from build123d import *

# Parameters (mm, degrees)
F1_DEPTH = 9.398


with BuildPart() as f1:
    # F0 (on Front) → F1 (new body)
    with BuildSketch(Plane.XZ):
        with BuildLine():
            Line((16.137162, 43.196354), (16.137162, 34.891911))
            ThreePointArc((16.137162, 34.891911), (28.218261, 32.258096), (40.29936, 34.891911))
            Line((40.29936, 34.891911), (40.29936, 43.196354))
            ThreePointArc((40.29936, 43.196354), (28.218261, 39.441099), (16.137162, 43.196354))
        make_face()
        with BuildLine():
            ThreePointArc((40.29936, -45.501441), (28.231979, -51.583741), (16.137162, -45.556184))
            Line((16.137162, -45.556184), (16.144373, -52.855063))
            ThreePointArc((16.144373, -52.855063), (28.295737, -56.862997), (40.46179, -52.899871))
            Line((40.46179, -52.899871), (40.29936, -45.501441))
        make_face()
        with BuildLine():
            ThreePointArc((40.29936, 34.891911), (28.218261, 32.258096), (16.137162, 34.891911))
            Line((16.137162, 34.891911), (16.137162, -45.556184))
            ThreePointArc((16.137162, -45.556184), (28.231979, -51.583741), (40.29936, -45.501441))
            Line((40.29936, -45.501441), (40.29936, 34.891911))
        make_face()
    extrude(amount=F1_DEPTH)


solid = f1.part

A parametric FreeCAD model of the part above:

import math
import FreeCAD as App
import Part
import Sketcher

V = App.Vector
Q = App.Units.Quantity

doc = App.newDocument("Part")
body = doc.addObject("PartDesign::Body", "Body")

# Sketch on XZ plane
sketch1 = doc.addObject("Sketcher::SketchObject", "Sketch")
body.addObject(sketch1)
sketch1.AttachmentSupport = (doc.XZ_Plane, [""])
sketch1.MapMode = "FlatFace"
sketch1.addGeometry([
    Part.LineSegment(V(16, 43, 0), V(16, -46, 0)),  # 0
    Part.LineSegment(V(16, -46, 0), V(16, -53, 0)),  # 1
    Part.ArcOfCircle(Part.Circle(V(28, -36, 0), V(0, 0, 1), 21), math.radians(-126), math.radians(-54)),  # 2
    Part.LineSegment(V(40, -53, 0), V(40, -46, 0)),  # 3
    Part.LineSegment(V(40, -46, 0), V(40, 43, 0)),  # 4
    Part.ArcOfCircle(Part.Circle(V(28, 61, 0), V(0, 0, 1), 21), math.radians(-125), math.radians(-55)),  # 5
], False)
sketch1.addConstraint([
    Sketcher.Constraint("Coincident", 0, 2, 1, 1),
    Sketcher.Constraint("Coincident", 1, 2, 2, 1),
    Sketcher.Constraint("Coincident", 2, 2, 3, 1),
    Sketcher.Constraint("Coincident", 3, 2, 4, 1),
    Sketcher.Constraint("Coincident", 4, 2, 5, 2),
    Sketcher.Constraint("Coincident", 5, 1, 0, 1),
    Sketcher.Constraint("Vertical", 0),
    Sketcher.Constraint("Vertical", 4),
    Sketcher.Constraint("Horizontal", 4, 2, 5, 1),
    Sketcher.Constraint("Radius", 5, Q("21.310789 mm")),
    Sketcher.Constraint("Radius", 2, Q("20.539165 mm")),
    Sketcher.Constraint("DistanceY", 0, 2, 0, 1, Q("88.752538 mm")),
    Sketcher.Constraint("DistanceX", 0, 2, 5, 3, Q("12.081099 mm")),
    Sketcher.Constraint("DistanceY", 4, 1, 4, 2, Q("88.697795 mm")),
    Sketcher.Constraint("DistanceX", -1, 1, 5, 3, Q("28.218261 mm")),
    Sketcher.Constraint("DistanceX", -1, 1, 2, 2, Q("40.46179 mm")),
    Sketcher.Constraint("DistanceY", 2, 2, -1, 1, Q("52.899871 mm")),
    Sketcher.Constraint("DistanceY", 3, 2, -1, 1, Q("45.501441 mm")),
    Sketcher.Constraint("DistanceX", 0, 2, 2, 3, Q("12.196422 mm")),
    Sketcher.Constraint("DistanceX", 0, 2, 1, 2, Q("0.007211 mm")),
])
pad1 = doc.addObject("PartDesign::Pad", "Pad")
body.addObject(pad1)
pad1.Profile = sketch1
pad1.Length = Q("0.37 in")

doc.recompute()
